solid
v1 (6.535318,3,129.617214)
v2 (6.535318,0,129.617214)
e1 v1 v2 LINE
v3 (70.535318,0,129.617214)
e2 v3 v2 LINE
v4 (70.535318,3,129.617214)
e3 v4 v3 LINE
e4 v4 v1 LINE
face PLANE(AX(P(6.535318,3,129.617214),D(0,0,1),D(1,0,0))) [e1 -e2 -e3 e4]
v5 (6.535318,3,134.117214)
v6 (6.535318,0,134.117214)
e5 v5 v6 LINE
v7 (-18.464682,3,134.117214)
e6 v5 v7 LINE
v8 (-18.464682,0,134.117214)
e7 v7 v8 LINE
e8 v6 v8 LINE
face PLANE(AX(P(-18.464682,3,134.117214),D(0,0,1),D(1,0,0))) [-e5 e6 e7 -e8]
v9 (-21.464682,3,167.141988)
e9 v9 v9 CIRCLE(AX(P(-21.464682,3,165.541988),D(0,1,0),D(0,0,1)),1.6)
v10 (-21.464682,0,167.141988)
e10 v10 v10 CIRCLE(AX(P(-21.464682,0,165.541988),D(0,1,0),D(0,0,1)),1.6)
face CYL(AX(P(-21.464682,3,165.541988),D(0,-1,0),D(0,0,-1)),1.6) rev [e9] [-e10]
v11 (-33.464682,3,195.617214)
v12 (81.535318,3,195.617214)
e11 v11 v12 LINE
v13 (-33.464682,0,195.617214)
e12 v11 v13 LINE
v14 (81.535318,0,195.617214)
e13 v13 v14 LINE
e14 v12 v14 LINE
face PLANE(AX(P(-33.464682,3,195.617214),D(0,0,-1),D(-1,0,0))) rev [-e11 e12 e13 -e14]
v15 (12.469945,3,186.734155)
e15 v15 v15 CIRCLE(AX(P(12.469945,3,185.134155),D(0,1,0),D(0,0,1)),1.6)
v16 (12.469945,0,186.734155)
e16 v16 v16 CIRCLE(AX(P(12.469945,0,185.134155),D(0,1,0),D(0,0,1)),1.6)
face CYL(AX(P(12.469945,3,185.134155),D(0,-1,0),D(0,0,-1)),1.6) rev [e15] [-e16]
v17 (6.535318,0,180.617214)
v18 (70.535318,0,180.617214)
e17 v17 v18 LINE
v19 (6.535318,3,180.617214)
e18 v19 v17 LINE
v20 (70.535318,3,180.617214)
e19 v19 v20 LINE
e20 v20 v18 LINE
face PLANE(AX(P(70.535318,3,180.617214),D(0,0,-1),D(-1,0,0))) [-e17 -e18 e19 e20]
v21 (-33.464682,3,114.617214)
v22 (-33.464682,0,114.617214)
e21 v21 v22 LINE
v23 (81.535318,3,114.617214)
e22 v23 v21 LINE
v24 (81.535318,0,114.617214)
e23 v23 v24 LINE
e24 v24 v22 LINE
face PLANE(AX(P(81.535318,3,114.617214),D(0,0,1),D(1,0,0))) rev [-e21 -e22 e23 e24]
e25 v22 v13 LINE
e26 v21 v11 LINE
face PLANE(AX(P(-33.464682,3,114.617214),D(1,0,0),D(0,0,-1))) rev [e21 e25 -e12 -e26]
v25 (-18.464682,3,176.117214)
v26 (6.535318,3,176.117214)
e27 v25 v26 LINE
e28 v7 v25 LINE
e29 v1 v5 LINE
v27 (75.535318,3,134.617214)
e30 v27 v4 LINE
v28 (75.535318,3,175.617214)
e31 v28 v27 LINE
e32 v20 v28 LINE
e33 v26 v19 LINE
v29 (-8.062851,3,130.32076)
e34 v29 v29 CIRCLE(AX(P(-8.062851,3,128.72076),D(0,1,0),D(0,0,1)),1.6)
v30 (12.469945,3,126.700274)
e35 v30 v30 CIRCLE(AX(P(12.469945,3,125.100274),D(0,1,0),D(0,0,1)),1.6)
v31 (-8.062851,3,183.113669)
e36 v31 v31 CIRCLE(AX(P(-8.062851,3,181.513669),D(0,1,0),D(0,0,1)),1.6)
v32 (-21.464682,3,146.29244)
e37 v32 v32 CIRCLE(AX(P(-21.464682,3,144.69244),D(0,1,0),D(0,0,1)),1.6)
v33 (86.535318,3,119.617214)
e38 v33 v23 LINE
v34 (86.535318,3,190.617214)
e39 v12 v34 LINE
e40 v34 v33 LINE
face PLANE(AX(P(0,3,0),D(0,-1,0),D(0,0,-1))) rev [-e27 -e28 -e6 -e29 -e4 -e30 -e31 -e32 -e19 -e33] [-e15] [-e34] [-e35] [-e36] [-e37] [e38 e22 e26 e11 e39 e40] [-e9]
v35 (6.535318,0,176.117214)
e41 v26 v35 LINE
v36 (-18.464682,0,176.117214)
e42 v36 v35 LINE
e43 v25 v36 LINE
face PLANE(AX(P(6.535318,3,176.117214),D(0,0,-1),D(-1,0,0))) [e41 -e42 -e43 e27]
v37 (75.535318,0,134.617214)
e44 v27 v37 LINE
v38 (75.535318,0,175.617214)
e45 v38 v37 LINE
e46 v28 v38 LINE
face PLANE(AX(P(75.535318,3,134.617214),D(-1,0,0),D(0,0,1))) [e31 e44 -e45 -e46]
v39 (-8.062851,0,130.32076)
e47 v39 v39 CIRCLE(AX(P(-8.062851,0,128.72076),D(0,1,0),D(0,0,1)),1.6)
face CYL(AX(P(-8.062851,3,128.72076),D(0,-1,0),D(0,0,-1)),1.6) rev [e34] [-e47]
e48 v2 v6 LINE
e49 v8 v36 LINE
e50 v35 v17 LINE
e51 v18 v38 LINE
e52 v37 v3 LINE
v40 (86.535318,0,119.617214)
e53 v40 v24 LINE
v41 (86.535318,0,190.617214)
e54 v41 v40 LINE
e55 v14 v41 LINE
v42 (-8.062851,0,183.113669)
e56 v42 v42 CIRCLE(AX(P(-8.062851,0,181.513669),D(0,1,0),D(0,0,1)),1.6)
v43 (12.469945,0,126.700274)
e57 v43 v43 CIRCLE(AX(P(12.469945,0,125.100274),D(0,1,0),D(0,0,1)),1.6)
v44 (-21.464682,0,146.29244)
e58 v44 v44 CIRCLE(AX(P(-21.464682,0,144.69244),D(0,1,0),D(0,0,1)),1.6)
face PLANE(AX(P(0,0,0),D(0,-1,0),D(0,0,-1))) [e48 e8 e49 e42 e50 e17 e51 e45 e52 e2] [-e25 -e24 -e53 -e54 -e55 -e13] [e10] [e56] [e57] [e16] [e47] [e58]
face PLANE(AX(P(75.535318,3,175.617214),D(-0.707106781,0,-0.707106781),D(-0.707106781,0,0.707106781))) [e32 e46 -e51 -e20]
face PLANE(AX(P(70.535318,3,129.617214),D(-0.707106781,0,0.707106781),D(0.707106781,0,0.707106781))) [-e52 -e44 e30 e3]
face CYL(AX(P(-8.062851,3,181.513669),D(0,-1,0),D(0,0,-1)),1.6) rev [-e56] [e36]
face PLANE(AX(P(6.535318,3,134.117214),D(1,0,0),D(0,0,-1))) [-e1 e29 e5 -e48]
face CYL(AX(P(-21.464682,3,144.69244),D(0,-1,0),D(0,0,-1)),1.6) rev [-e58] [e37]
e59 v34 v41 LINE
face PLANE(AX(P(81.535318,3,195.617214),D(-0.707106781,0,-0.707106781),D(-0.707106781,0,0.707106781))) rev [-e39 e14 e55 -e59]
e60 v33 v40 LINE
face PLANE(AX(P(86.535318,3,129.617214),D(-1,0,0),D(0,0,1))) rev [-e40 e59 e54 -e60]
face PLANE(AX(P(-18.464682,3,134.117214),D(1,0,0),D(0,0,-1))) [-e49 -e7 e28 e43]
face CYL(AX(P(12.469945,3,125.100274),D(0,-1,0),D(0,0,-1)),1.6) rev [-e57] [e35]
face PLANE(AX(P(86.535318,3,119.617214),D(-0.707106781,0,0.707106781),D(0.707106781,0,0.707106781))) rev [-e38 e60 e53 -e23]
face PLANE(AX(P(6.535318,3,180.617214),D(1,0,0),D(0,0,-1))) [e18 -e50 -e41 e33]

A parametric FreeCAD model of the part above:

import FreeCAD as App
import Part
import Sketcher
from FreeCAD import Vector


def add_polygon(sketch, points):
    """Adds a closed chain of lines whose ends are joined by coincident constraints."""
    first, n = sketch.GeometryCount, len(points)
    for a, b in zip(points, points[1:] + points[:1]):
        sketch.addGeometry(Part.LineSegment(App.Vector(*a, 0), App.Vector(*b, 0)), False)
    for i in range(n):
        sketch.addConstraint(Sketcher.Constraint("Coincident", first + i, 2, first + (i + 1) % n, 1))

doc = App.newDocument("Part")
params = doc.addObject("Spreadsheet::Sheet", "Params")
for row, (alias, value) in enumerate([
    ("sketch1_diameter", "3.2 mm"),
    ("sketch1_width", "115 mm"),
    ("sketch1_width2", "25 mm"),
    ("sketch1_width3", "64 mm"),
    ("sketch1_height", "81 mm"),
    ("pad1_length", "3 mm"),
], start=1):
    params.set(f"A{row}", alias)
    params.set(f"B{row}", "=" + value)
    params.setAlias(f"B{row}", alias)

body = doc.addObject("PartDesign::Body", "Body")

sketch1 = body.newObject("Sketcher::SketchObject", "Sketch")
sketch1.AttachmentSupport = (doc.getObject("XZ_Plane"), [""])
sketch1.MapMode = "FlatFace"
add_polygon(sketch1, [(86.535318, 119.617214), (81.535318, 114.617214), (-33.464682, 114.617214), (-33.464682, 195.617214), (81.535318, 195.617214), (86.535318, 190.617214)])
sketch1.addGeometry(Part.Circle(Vector(-8.062851, 181.513669, 0), Vector(0, 0, 1), 1.6), False)
sketch1.addGeometry(Part.Circle(Vector(12.469945, 185.134155, 0), Vector(0, 0, 1), 1.6), False)
sketch1.addGeometry(Part.Circle(Vector(-21.464682, 165.541988, 0), Vector(0, 0, 1), 1.6), False)
sketch1.addGeometry(Part.Circle(Vector(-21.464682, 144.69244, 0), Vector(0, 0, 1), 1.6), False)
sketch1.addGeometry(Part.Circle(Vector(-8.062851, 128.72076, 0), Vector(0, 0, 1), 1.6), False)
sketch1.addGeometry(Part.Circle(Vector(12.469945, 125.100274, 0), Vector(0, 0, 1), 1.6), False)
add_polygon(sketch1, [(-18.464682, 176.117214), (-18.464682, 134.117214), (6.535318, 134.117214), (6.535318, 129.617214), (70.535318, 129.617214), (75.535318, 134.617214), (75.535318, 175.617214), (70.535318, 180.617214), (6.535318, 180.617214), (6.535318, 176.117214)])
sketch1.addConstraint([
    Sketcher.Constraint("Horizontal", 1),
    Sketcher.Constraint("Vertical", 2),
    Sketcher.Constraint("Horizontal", 3),
    Sketcher.Constraint("Vertical", 5),
    Sketcher.Constraint("Vertical", 12),
    Sketcher.Constraint("Horizontal", 13),
    Sketcher.Constraint("Vertical", 14),
    Sketcher.Constraint("Horizontal", 15),
    Sketcher.Constraint("Vertical", 17),
    Sketcher.Constraint("Horizontal", 19),
    Sketcher.Constraint("Vertical", 20),
    Sketcher.Constraint("Horizontal", 21),
    Sketcher.Constraint("Equal", 6, 7),
    Sketcher.Constraint("Equal", 7, 8),
    Sketcher.Constraint("Equal", 8, 9),
    Sketcher.Constraint("Equal", 9, 10),
    Sketcher.Constraint("Equal", 10, 11),
    Sketcher.Constraint("Perpendicular", 0, 4),
    Sketcher.Constraint("Perpendicular", 4, 16),
    Sketcher.Constraint("Perpendicular", 16, 18),
    Sketcher.Constraint("Vertical", 8, 3, 9, 3),
    Sketcher.Constraint("Vertical", 6, 3, 10, 3),
    Sketcher.Constraint("Vertical", 7, 3, 11, 3),
    Sketcher.Constraint("Vertical", 0, 2, 3, 2),
    Sketcher.Constraint("Vertical", 15, 2, 18, 2),
    Sketcher.Constraint("Vertical", 14, 2, 19, 2),
    Sketcher.Constraint("Equal", 14, 20),
    Sketcher.Constraint("Equal", 0, 4),
    Sketcher.Constraint("Equal", 4, 16),
    Sketcher.Constraint("Diameter", 6, 3.2),
    Sketcher.Constraint("DistanceX", 1, 2, 1, 1, 115.0),
    Sketcher.Constraint("DistanceX", 13, 1, 13, 2, 25.0),
    Sketcher.Constraint("DistanceX", 15, 1, 15, 2, 64.0),
    Sketcher.Constraint("DistanceY", 2, 1, 2, 2, 81.0),
    Sketcher.Constraint("DistanceY", 5, 2, 5, 1, 71.0),
    Sketcher.Constraint("DistanceY", 12, 2, 12, 1, 42.0),
    Sketcher.Constraint("DistanceY", 17, 1, 17, 2, 41.0),
    Sketcher.Constraint("DistanceX", 9, 3, 0, 2, 103.0),
    Sketcher.Constraint("DistanceX", 9, 3, 12, 2, 3.0),
    Sketcher.Constraint("DistanceY", 0, 2, 15, 2, 15.0),
    Sketcher.Constraint("DistanceX", 6, 3, -1, 1, 8.062851),
    Sketcher.Constraint("DistanceY", -1, 1, 6, 3, 181.513669),
    Sketcher.Constraint("DistanceY", -1, 1, 8, 3, 165.541988),
    Sketcher.Constraint("DistanceY", -1, 1, 9, 3, 144.69244),
    Sketcher.Constraint("DistanceY", -1, 1, 10, 3, 128.72076),
    Sketcher.Constraint("DistanceX", 8, 3, 6, 3, 13.401831),
    Sketcher.Constraint("DistanceY", 11, 3, 7, 3, 60.033881),
    Sketcher.Constraint("DistanceY", 0, 2, 11, 3, 10.48306),
    Sketcher.Constraint("DistanceX", -1, 1, 7, 3, 12.469945),
    Sketcher.Constraint("DistanceY", -1, 1, 7, 3, 185.134155),
])
sketch1.setExpression("Constraints[45]", "Params.sketch1_diameter")
sketch1.setExpression("Constraints[46]", "Params.sketch1_width")
sketch1.setExpression("Constraints[47]", "Params.sketch1_width2")
sketch1.setExpression("Constraints[48]", "Params.sketch1_width3")
sketch1.setExpression("Constraints[49]", "Params.sketch1_height")
pad1 = body.newObject("PartDesign::Pad", "Pad")
pad1.Profile = sketch1
pad1.setExpression("Length", "Params.pad1_length")
pad1.Reversed = True

doc.recompute()
